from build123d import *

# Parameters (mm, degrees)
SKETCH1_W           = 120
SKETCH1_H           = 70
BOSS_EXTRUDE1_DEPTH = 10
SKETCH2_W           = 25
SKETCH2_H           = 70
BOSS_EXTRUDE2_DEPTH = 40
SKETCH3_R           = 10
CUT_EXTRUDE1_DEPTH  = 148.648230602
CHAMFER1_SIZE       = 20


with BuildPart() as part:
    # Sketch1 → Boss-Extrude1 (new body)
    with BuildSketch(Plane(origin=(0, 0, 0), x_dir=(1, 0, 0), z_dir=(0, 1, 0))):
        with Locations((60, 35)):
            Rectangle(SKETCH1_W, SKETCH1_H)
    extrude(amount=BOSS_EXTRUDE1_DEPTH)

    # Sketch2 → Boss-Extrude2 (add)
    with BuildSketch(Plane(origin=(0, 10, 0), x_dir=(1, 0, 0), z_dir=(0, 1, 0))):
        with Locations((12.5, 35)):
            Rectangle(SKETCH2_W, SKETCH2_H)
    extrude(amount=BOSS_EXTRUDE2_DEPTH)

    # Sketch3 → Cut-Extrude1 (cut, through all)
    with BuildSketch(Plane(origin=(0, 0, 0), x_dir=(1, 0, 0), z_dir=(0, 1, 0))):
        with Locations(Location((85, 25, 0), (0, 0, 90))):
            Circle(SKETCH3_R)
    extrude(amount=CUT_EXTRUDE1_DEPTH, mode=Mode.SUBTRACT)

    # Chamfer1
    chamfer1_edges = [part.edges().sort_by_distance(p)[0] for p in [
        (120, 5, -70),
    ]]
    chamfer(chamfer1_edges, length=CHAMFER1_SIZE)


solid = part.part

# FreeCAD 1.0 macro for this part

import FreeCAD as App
import Part
import Sketcher
from FreeCAD import Vector


def edges_at(feature, points):
    """Names of the edges that pass closest to the given points."""
    edges = feature.Shape.Edges
    near = lambda p: min(range(len(edges)), key=lambda i: edges[i].distToShape(Part.Vertex(*p))[0])
    return sorted({f"Edge{near(p) + 1}" for p in points})

doc = App.newDocument("Part")
body = doc.addObject("PartDesign::Body", "Body")

sketch1 = body.newObject("Sketcher::SketchObject", "Sketch")
sketch1.AttachmentSupport = (doc.getObject("XZ_Plane"), [""])
sketch1.MapMode = "FlatFace"
sketch1.addGeometry([
    Part.LineSegment(Vector(0, -70, 0), Vector(0, 0, 0)),
    Part.LineSegment(Vector(0, 0, 0), Vector(120, 0, 0)),
    Part.LineSegment(Vector(120, 0, 0), Vector(120, -70, 0)),
    Part.LineSegment(Vector(120, -70, 0), Vector(0, -70, 0)),
], False)
sketch1.addConstraint([
    Sketcher.Constraint("Coincident", 0, 2, 1, 1),
    Sketcher.Constraint("Coincident", 1, 2, 2, 1),
    Sketcher.Constraint("Coincident", 2, 2, 3, 1),
    Sketcher.Constraint("Coincident", 3, 2, 0, 1),
    Sketcher.Constraint("Vertical", 0),
    Sketcher.Constraint("Horizontal", 1),
    Sketcher.Constraint("Vertical", 2),
    Sketcher.Constraint("Horizontal", 3),
    Sketcher.Constraint("Coincident", 0, 2, -1, 1),
    Sketcher.Constraint("DistanceX", 1, 1, 1, 2, 120.0),
    Sketcher.Constraint("DistanceY", 0, 1, 0, 2, 70.0),
])
pad1 = body.newObject("PartDesign::Pad", "Pad")
pad1.Profile = sketch1
pad1.Length = 10
pad1.Reversed = True

sketch2 = body.newObject("Sketcher::SketchObject", "Sketch001")
sketch2.AttachmentSupport = (doc.getObject("XZ_Plane"), [""])
sketch2.MapMode = "FlatFace"
sketch2.AttachmentOffset = App.Placement(Vector(0, 0, -10), App.Rotation())
sketch2.addGeometry([
    Part.LineSegment(Vector(0, -70, 0), Vector(0, 0, 0)),
    Part.LineSegment(Vector(0, 0, 0), Vector(25, 0, 0)),
    Part.LineSegment(Vector(25, 0, 0), Vector(25, -70, 0)),
    Part.LineSegment(Vector(25, -70, 0), Vector(0, -70, 0)),
], False)
sketch2.addConstraint([
    Sketcher.Constraint("Coincident", 0, 2, 1, 1),
    Sketcher.Constraint("Coincident", 1, 2, 2, 1),
    Sketcher.Constraint("Coincident", 2, 2, 3, 1),
    Sketcher.Constraint("Coincident", 3, 2, 0, 1),
    Sketcher.Constraint("Vertical", 0),
    Sketcher.Constraint("Horizontal", 1),
    Sketcher.Constraint("Vertical", 2),
    Sketcher.Constraint("Horizontal", 3),
    Sketcher.Constraint("Coincident", 0, 2, -1, 1),
    Sketcher.Constraint("DistanceX", 1, 1, 1, 2, 25.0),
    Sketcher.Constraint("DistanceY", 0, 1, 0, 2, 70.0),
])
pad2 = body.newObject("PartDesign::Pad", "Pad001")
pad2.Profile = sketch2
pad2.Length = 40
pad2.Reversed = True

sketch3 = body.newObject("Sketcher::SketchObject", "Sketch002")
sketch3.AttachmentSupport = (doc.getObject("XZ_Plane"), [""])
sketch3.MapMode = "FlatFace"
sketch3.addGeometry(Part.Circle(Vector(85, -25, 0), Vector(0, 0, 1), 10), False)
sketch3.addConstraint([
    Sketcher.Constraint("Diameter", 0, 20.0),
    Sketcher.Constraint("DistanceX", -1, 1, 0, 3, 85.0),
    Sketcher.Constraint("DistanceY", 0, 3, -1, 1, 25.0),
])
pocket1 = body.newObject("PartDesign::Pocket", "Pocket")
pocket1.Profile = sketch3
pocket1.Type = "ThroughAll"
doc.recompute()

chamfer = body.newObject("PartDesign::Chamfer", "Chamfer")
chamfer.Base = (pocket1, edges_at(pocket1, [(120, 5, -70)]))
chamfer.Size = 20

doc.recompute()
